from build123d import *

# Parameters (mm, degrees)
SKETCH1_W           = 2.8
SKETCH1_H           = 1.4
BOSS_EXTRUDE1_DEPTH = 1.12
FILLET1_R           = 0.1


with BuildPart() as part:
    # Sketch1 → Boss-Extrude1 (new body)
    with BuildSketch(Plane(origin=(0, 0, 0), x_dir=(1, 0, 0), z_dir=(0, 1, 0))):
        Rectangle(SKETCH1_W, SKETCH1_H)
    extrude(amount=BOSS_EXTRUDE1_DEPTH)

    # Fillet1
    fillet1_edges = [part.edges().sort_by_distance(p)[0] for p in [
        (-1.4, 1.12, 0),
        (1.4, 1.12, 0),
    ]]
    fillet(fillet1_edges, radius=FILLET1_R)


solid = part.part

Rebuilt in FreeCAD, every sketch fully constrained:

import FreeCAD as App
import Part
import Sketcher
from FreeCAD import Vector
Q = App.Units.Quantity


def edges_at(feature, points):
    """Names of the edges that pass closest to the given points."""
    edges = feature.Shape.Edges
    near = lambda p: min(range(len(edges)), key=lambda i: edges[i].distToShape(Part.Vertex(*p))[0])
    return sorted({f"Edge{near(p) + 1}" for p in points})

doc = App.newDocument("Part")
body = doc.addObject("PartDesign::Body", "Body")

# Sketch on XZ plane
sketch1 = body.newObject("Sketcher::SketchObject", "Sketch")
sketch1.AttachmentSupport = (doc.getObject("XZ_Plane"), [""])
sketch1.MapMode = "FlatFace"
sketch1.addGeometry(Part.LineSegment(Vector(-1.4, -0.7, 0), Vector(-1.4, 0.7, 0)), False)
sketch1.addGeometry(Part.LineSegment(Vector(-1.4, 0.7, 0), Vector(1.4, 0.7, 0)), False)
sketch1.addGeometry(Part.LineSegment(Vector(1.4, 0.7, 0), Vector(1.4, -0.7, 0)), False)
sketch1.addGeometry(Part.LineSegment(Vector(1.4, -0.7, 0), Vector(-1.4, -0.7, 0)), False)
sketch1.addConstraint(Sketcher.Constraint("Coincident", 0, 2, 1, 1))
sketch1.addConstraint(Sketcher.Constraint("Coincident", 1, 2, 2, 1))
sketch1.addConstraint(Sketcher.Constraint("Coincident", 2, 2, 3, 1))
sketch1.addConstraint(Sketcher.Constraint("Coincident", 3, 2, 0, 1))
sketch1.addConstraint(Sketcher.Constraint("Vertical", 0))
sketch1.addConstraint(Sketcher.Constraint("Horizontal", 1))
sketch1.addConstraint(Sketcher.Constraint("Vertical", 2))
sketch1.addConstraint(Sketcher.Constraint("Horizontal", 3))
sketch1.addConstraint(Sketcher.Constraint("Symmetric", 0, 2, 2, 2, -1, 1))
sketch1.addConstraint(Sketcher.Constraint("DistanceX", 1, 1, 1, 2, Q("2.8 mm")))
sketch1.addConstraint(Sketcher.Constraint("DistanceY", 0, 1, 0, 2, Q("1.4 mm")))
pad1 = body.newObject("PartDesign::Pad", "Pad")
pad1.Profile = sketch1
pad1.Length = 1.12
pad1.Reversed = True
doc.recompute()

fillet = body.newObject("PartDesign::Fillet", "Fillet")
fillet.Base = (pad1, edges_at(pad1, [(-1.4, 1.12, 0), (1.4, 1.12, 0)]))
fillet.Radius = 0.1

doc.recompute()
